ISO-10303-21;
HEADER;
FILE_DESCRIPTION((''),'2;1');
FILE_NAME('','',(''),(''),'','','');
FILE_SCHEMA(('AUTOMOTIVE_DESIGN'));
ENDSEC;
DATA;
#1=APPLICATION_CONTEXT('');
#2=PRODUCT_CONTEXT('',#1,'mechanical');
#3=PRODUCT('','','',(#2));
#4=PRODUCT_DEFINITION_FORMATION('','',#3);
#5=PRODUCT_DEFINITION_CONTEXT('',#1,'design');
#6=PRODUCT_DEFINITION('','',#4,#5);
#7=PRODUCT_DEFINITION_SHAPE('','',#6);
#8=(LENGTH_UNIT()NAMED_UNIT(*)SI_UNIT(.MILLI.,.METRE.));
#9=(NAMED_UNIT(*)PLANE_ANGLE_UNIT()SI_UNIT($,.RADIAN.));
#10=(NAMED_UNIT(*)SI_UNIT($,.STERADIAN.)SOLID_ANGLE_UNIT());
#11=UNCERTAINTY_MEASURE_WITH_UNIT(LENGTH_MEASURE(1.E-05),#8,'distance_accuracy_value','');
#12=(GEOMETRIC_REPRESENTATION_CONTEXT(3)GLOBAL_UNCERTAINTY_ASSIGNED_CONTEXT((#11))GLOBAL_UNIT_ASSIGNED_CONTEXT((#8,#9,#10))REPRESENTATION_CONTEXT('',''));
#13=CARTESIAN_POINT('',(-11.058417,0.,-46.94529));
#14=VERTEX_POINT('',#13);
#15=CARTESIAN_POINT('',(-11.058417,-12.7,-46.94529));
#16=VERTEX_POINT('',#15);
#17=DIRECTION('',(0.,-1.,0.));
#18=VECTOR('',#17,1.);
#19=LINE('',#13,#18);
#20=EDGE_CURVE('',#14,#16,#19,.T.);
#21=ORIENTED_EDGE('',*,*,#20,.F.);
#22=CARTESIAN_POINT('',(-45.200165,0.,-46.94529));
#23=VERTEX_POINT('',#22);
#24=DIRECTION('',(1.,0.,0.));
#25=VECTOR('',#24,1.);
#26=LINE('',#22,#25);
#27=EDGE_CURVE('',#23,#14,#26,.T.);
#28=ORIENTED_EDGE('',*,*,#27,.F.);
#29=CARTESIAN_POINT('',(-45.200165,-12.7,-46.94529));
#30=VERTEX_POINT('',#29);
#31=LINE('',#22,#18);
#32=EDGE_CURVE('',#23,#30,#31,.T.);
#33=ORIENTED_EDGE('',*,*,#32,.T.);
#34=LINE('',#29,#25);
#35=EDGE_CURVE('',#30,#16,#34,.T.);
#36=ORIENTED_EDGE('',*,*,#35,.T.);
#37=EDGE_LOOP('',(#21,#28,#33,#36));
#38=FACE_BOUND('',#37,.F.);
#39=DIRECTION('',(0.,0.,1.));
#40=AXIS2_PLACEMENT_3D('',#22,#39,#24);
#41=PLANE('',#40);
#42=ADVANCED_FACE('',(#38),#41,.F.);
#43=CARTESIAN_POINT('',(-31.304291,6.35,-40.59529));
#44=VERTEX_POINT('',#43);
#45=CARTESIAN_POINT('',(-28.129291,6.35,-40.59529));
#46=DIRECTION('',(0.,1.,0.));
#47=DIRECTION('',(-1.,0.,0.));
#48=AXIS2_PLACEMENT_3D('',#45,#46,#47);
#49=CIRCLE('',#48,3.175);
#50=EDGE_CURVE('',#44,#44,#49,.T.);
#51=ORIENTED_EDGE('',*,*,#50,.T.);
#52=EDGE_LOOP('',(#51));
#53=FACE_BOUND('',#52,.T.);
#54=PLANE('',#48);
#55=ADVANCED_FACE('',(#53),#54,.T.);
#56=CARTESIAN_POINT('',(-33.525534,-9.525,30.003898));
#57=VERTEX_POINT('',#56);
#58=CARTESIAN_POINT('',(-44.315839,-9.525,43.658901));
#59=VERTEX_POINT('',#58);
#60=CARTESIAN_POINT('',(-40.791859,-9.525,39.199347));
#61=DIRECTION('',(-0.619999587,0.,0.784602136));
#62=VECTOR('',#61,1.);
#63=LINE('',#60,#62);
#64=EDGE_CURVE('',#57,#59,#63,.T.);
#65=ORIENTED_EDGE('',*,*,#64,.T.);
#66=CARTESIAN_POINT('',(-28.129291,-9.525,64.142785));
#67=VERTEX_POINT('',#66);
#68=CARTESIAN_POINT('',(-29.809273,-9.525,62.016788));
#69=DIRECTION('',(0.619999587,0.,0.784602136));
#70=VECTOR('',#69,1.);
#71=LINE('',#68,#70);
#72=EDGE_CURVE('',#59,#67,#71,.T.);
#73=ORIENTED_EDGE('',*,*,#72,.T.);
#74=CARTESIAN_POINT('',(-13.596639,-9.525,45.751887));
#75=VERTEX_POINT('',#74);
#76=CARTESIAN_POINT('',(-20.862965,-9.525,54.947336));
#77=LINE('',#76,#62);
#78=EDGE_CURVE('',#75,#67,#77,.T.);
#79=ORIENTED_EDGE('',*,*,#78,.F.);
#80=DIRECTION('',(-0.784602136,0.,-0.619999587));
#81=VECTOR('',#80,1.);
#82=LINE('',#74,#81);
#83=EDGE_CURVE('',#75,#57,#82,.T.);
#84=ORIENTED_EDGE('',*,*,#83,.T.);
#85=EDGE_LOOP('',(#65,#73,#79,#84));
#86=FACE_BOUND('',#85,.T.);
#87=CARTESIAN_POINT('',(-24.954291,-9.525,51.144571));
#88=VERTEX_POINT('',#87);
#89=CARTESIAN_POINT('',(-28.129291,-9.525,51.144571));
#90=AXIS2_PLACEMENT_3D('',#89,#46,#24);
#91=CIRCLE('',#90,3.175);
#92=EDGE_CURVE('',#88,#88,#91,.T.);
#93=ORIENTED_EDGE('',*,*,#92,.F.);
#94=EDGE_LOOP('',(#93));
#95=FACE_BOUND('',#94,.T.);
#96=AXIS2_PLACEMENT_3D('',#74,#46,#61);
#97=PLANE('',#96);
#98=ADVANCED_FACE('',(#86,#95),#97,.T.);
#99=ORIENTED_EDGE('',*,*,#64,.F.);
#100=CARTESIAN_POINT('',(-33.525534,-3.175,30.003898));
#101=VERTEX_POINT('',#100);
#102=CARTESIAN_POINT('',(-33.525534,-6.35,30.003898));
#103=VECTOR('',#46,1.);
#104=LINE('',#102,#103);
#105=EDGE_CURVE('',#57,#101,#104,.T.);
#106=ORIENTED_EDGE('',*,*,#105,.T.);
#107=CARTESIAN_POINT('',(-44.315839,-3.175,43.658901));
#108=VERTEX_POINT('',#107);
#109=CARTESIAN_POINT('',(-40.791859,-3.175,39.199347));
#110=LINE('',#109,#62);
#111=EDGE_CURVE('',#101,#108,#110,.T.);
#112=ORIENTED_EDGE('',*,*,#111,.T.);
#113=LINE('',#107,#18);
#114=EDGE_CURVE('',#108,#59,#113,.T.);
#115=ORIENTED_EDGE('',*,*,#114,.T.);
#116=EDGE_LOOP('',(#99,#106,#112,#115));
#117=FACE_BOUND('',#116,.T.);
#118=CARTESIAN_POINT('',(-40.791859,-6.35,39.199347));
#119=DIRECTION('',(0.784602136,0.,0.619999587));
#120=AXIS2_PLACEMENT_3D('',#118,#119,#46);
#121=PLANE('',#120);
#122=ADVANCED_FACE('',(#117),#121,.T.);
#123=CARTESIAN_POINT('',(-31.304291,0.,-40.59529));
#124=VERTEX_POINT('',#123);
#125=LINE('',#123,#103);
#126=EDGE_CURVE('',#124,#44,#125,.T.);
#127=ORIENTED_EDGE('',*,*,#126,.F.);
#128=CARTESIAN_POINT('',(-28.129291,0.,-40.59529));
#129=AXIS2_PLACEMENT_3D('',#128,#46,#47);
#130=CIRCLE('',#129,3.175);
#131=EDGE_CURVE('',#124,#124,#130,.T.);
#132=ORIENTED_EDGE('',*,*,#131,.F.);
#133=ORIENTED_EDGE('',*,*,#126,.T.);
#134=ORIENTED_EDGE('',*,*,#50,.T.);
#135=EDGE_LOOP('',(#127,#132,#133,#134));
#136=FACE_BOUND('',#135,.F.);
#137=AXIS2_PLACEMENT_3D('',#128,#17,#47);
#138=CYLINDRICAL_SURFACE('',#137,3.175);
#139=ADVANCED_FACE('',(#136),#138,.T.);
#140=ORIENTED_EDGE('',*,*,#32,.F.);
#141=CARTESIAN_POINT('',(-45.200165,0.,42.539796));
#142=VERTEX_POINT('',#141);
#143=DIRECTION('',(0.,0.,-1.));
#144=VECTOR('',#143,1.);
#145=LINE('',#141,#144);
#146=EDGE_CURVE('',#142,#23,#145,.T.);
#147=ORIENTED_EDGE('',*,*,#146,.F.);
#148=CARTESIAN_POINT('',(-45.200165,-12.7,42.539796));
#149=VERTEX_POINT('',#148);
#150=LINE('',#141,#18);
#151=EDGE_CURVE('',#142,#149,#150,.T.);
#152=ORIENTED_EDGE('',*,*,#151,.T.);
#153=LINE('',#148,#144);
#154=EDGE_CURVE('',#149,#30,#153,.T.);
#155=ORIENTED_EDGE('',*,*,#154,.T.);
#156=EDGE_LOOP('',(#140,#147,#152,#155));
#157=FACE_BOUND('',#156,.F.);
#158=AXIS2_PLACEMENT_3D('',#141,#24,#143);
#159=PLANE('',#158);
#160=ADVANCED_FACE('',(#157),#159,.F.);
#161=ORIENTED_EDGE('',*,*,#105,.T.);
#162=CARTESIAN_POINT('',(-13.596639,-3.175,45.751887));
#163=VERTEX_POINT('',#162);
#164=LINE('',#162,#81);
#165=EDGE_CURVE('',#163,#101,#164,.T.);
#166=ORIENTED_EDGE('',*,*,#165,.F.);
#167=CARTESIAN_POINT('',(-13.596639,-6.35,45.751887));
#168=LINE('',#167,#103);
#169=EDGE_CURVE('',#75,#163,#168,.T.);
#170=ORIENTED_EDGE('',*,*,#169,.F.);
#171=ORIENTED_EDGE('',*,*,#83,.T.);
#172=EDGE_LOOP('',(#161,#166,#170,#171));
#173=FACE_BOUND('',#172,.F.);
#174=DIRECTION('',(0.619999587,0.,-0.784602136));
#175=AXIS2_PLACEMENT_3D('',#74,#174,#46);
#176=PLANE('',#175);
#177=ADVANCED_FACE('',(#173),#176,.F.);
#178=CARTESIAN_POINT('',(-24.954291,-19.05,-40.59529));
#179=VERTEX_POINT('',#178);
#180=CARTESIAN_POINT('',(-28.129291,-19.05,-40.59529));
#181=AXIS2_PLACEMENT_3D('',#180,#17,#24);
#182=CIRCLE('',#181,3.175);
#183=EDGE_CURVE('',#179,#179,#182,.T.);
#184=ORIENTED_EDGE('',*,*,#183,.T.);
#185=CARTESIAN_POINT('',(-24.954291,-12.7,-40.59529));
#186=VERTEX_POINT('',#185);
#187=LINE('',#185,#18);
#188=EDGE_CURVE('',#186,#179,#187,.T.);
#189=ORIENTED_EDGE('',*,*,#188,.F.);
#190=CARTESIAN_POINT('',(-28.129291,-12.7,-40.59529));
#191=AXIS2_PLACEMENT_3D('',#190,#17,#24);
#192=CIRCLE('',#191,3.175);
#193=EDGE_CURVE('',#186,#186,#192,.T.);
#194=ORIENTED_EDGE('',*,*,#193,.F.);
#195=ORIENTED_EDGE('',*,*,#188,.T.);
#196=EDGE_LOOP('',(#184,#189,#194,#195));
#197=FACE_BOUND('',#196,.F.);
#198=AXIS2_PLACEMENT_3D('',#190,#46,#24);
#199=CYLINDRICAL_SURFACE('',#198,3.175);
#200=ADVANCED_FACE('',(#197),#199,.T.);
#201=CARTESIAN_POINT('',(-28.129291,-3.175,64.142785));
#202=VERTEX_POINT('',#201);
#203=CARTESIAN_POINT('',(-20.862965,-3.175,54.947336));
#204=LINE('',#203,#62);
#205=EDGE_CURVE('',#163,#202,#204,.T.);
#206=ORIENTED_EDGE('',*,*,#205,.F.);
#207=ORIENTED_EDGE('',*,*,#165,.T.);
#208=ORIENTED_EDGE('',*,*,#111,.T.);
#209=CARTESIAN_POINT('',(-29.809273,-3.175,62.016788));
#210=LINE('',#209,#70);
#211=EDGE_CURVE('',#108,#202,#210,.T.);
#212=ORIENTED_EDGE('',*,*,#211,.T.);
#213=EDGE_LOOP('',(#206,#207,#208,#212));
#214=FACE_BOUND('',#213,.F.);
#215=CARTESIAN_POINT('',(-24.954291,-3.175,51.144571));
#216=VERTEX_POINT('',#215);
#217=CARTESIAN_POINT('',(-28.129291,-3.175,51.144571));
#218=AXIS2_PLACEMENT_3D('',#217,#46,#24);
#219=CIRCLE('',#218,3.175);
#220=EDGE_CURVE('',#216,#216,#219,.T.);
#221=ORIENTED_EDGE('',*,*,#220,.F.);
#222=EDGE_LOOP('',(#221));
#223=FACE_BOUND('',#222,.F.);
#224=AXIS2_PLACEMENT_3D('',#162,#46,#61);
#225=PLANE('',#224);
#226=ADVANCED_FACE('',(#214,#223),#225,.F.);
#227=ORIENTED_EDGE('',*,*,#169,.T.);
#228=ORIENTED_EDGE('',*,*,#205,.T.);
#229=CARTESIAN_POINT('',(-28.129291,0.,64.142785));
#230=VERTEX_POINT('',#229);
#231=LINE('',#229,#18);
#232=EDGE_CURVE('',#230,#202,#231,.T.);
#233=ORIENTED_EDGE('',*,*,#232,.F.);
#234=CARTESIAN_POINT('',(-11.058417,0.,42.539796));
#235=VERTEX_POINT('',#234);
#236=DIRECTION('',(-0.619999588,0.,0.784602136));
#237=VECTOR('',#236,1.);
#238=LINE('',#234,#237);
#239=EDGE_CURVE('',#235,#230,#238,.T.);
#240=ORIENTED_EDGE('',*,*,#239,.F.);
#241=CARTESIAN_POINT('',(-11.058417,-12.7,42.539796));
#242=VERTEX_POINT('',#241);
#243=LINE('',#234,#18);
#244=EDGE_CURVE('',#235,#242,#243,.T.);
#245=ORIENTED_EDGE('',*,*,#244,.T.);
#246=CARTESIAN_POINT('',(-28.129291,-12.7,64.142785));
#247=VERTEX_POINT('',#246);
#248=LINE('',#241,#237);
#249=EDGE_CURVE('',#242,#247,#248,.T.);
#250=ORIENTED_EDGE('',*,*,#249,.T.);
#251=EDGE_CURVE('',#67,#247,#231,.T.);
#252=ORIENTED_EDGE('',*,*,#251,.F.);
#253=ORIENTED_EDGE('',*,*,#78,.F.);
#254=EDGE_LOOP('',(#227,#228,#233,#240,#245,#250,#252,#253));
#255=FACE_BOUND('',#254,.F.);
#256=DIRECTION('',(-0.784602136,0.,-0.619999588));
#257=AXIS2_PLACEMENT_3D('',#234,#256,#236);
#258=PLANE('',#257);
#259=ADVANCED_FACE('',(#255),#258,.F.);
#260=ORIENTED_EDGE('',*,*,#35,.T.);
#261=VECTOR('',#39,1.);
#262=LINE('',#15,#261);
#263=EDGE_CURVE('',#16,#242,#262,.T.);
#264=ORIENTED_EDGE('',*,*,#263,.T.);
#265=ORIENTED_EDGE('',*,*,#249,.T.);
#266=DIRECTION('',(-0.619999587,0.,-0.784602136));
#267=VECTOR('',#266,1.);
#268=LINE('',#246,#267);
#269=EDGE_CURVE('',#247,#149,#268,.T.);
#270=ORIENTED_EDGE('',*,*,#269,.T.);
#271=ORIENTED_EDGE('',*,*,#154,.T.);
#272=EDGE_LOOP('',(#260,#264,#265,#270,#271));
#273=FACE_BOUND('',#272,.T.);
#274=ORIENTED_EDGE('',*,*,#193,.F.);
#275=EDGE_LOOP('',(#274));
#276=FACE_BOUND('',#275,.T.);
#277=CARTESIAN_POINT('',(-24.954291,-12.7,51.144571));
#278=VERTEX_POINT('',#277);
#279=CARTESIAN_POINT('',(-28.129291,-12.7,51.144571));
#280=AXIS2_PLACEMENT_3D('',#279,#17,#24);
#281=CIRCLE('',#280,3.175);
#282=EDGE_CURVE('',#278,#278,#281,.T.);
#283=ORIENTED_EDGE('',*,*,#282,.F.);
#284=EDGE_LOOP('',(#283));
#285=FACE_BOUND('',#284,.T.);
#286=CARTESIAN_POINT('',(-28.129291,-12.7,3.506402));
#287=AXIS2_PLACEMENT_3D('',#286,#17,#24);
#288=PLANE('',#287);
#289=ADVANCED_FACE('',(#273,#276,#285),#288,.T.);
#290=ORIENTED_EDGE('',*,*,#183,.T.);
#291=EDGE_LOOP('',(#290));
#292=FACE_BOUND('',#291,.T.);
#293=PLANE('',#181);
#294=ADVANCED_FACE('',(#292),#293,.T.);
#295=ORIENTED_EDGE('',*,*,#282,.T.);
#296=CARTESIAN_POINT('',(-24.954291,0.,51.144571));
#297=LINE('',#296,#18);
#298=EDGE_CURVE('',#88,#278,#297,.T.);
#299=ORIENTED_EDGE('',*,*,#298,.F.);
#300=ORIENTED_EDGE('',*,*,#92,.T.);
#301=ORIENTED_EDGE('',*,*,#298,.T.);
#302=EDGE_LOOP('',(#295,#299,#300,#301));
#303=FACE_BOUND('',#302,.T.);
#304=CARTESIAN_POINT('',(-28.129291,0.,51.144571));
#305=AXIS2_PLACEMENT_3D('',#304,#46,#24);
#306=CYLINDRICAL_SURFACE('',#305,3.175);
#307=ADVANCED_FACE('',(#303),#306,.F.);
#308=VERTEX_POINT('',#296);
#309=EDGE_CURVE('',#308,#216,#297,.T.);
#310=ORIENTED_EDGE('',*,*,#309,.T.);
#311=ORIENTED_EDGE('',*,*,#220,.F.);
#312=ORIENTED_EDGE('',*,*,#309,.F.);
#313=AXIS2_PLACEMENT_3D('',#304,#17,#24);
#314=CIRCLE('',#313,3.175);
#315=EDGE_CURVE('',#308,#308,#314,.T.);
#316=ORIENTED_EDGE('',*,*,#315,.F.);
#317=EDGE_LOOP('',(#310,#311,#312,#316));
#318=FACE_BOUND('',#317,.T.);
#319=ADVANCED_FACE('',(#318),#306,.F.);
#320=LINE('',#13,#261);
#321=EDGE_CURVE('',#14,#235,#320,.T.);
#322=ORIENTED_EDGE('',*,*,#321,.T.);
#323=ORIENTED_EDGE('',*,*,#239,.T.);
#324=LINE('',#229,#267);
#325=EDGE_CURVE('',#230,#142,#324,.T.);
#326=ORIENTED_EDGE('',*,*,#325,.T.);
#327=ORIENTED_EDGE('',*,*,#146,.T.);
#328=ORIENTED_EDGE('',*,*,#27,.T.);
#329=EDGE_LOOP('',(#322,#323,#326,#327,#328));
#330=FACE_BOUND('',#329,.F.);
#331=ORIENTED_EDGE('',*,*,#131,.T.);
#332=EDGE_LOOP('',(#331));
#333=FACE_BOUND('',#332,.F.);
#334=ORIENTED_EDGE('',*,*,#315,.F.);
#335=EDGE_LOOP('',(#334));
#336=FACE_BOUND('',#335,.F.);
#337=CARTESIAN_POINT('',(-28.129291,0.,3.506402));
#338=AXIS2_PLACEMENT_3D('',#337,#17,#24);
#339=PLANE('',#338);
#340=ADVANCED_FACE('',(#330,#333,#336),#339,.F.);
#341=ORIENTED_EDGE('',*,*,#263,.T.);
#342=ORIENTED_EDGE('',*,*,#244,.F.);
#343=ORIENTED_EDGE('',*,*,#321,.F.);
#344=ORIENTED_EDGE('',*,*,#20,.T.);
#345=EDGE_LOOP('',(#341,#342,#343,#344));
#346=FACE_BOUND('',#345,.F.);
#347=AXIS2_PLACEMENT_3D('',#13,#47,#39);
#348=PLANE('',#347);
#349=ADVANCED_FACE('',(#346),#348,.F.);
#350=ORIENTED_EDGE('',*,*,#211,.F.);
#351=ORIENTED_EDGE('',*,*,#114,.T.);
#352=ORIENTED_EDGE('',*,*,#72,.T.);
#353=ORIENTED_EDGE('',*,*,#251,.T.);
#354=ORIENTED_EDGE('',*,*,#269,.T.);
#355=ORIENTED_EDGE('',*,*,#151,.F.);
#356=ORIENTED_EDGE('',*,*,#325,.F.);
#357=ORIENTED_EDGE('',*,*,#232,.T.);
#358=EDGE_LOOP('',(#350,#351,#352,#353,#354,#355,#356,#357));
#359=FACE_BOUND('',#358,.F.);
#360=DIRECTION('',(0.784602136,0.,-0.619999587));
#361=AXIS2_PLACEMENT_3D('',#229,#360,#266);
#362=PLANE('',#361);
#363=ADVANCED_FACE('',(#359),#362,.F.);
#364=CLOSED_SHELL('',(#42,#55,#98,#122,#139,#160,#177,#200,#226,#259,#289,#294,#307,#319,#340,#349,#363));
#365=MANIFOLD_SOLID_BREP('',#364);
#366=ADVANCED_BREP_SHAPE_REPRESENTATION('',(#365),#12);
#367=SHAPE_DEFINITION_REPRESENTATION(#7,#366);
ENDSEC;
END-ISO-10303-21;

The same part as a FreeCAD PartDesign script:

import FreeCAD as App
import Part
import Sketcher
Q = App.Units.Quantity


def add_polygon(sketch, points):
    """Adds a closed chain of lines whose ends are joined by coincident constraints."""
    first, n = sketch.GeometryCount, len(points)
    for a, b in zip(points, points[1:] + points[:1]):
        sketch.addGeometry(Part.LineSegment(App.Vector(*a, 0), App.Vector(*b, 0)), False)
    for i in range(n):
        sketch.addConstraint(Sketcher.Constraint("Coincident", first + i, 2, first + (i + 1) % n, 1))

doc = App.newDocument("Part")
body = doc.addObject("PartDesign::Body", "Body")

sketch1 = body.newObject("Sketcher::SketchObject", "Sketch")
sketch1.AttachmentSupport = (doc.getObject("XZ_Plane"), [""])
sketch1.MapMode = "FlatFace"
add_polygon(sketch1, [(-11.1, 42.5), (-28.1, 64.1), (-45.2, 42.5), (-45.2, -46.9), (-11.1, -46.9)])
sketch1.addGeometry(Part.Circle(App.Vector(-28.1, 51.1, 0), App.Vector(0, 0, 1), 3.2), False)
sketch1.addConstraint(Sketcher.Constraint("Vertical", 2))
sketch1.addConstraint(Sketcher.Constraint("Horizontal", 3))
sketch1.addConstraint(Sketcher.Constraint("Vertical", 4))
sketch1.addConstraint(Sketcher.Constraint("Horizontal", 1, 2, 4, 2))
sketch1.addConstraint(Sketcher.Constraint("Vertical", 5, 3, 0, 2))
sketch1.addConstraint(Sketcher.Constraint("Equal", 0, 1))
sketch1.addConstraint(Sketcher.Constraint("Diameter", 5, Q("0.25 in")))
sketch1.addConstraint(Sketcher.Constraint("DistanceX", 3, 1, 3, 2, 34.141748))
sketch1.addConstraint(Sketcher.Constraint("DistanceY", 2, 2, 2, 1, 89.485086))
sketch1.addConstraint(Sketcher.Constraint("DistanceX", 5, 3, -1, 1, 28.129291))
sketch1.addConstraint(Sketcher.Constraint("DistanceY", -1, 1, 5, 3, 51.144571))
sketch1.addConstraint(Sketcher.Constraint("DistanceY", 2, 2, -1, 1, 46.94529))
sketch1.addConstraint(Sketcher.Constraint("DistanceY", 1, 2, 0, 2, 21.602989))
pad1 = body.newObject("PartDesign::Pad", "Pad")
pad1.Profile = sketch1
pad1.Length = Q("0.5 in")

sketch2 = body.newObject("Sketcher::SketchObject", "Sketch001")
sketch2.Placement = App.Placement(App.Vector(13.886045, 0, 10.972876), App.Rotation(App.Vector(0, 1, 0), App.Vector(-0.619999587, 0, 0.784602136), App.Vector(0.784602136, 0, 0.619999587), "ZXY"))
add_polygon(sketch2, [(-10, 68), (-10, 44), (-3, 44), (-3, 68)])
sketch2.addConstraint(Sketcher.Constraint("Vertical", 0))
sketch2.addConstraint(Sketcher.Constraint("Horizontal", 1))
sketch2.addConstraint(Sketcher.Constraint("Vertical", 2))
sketch2.addConstraint(Sketcher.Constraint("Horizontal", 3))
sketch2.addConstraint(Sketcher.Constraint("DistanceX", 1, 1, 1, 2, Q("0.25 in")))
sketch2.addConstraint(Sketcher.Constraint("DistanceX", 0, 2, -1, 1, Q("0.375 in")))
sketch2.addConstraint(Sketcher.Constraint("DistanceY", 0, 2, 0, 1, 23.439776))
sketch2.addConstraint(Sketcher.Constraint("DistanceY", -1, 1, 0, 2, 44.326939))
pocket1 = body.newObject("PartDesign::Pocket", "Pocket")
pocket1.Profile = sketch2
pocket1.Length = Q("1 in")

sketch3 = body.newObject("Sketcher::SketchObject", "Sketch002")
sketch3.AttachmentSupport = (doc.getObject("XZ_Plane"), [""])
sketch3.MapMode = "FlatFace"
sketch3.addGeometry(Part.Circle(App.Vector(-28.1, -40.6, 0), App.Vector(0, 0, 1), 3.2), False)
sketch3.addConstraint(Sketcher.Constraint("Diameter", 0, Q("0.25 in")))
sketch3.addConstraint(Sketcher.Constraint("DistanceX", 0, 3, -1, 1, 28.129291))
sketch3.addConstraint(Sketcher.Constraint("DistanceY", 0, 3, -1, 1, 40.59529))
pad2 = body.newObject("PartDesign::Pad", "Pad001")
pad2.Profile = sketch3
pad2.Length = Q("0.25 in")
pad2.Reversed = True

sketch4 = body.newObject("Sketcher::SketchObject", "Sketch003")
sketch4.AttachmentSupport = (doc.getObject("XZ_Plane"), [""])
sketch4.MapMode = "FlatFace"
sketch4.AttachmentOffset = App.Placement(App.Vector(0, 0, 0.5 * 25.4), App.Rotation())
sketch4.addGeometry(Part.Circle(App.Vector(-28.1, -40.6, 0), App.Vector(0, 0, 1), 3.2), False)
sketch4.addConstraint(Sketcher.Constraint("Diameter", 0, Q("0.25 in")))
sketch4.addConstraint(Sketcher.Constraint("DistanceX", 0, 3, -1, 1, 28.129291))
sketch4.addConstraint(Sketcher.Constraint("DistanceY", 0, 3, -1, 1, 40.59529))
pad3 = body.newObject("PartDesign::Pad", "Pad002")
pad3.Profile = sketch4
pad3.Length = Q("0.25 in")

doc.recompute()
